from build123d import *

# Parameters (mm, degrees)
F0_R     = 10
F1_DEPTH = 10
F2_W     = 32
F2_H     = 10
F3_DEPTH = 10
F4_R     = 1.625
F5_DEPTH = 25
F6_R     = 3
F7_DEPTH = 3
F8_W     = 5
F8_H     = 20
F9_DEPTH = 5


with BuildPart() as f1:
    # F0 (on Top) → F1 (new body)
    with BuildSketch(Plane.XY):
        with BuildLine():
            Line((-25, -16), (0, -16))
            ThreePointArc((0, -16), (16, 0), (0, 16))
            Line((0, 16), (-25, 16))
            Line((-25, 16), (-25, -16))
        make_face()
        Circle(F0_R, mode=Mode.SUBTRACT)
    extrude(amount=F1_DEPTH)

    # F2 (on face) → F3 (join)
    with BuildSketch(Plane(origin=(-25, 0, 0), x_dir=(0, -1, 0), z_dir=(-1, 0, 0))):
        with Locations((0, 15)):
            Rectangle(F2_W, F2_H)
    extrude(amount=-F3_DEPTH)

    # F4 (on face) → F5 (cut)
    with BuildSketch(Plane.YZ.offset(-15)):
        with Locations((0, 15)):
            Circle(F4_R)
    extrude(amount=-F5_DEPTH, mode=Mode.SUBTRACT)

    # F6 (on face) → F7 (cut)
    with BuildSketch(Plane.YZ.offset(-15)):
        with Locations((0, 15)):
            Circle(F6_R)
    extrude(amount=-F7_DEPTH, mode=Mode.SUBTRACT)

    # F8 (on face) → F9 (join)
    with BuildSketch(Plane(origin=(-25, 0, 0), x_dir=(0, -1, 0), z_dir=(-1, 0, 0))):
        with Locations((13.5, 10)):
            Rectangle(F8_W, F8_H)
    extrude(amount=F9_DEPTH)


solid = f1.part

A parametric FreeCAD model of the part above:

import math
import FreeCAD as App
import Part
import Sketcher
Q = App.Units.Quantity

doc = App.newDocument("Part")
body = doc.addObject("PartDesign::Body", "Body")

# Sketch on XY plane
sketch1 = doc.addObject("Sketcher::SketchObject", "Sketch")
body.addObject(sketch1)
sketch1.AttachmentSupport = (doc.XY_Plane, [""])
sketch1.MapMode = "FlatFace"
sketch1.addGeometry(Part.LineSegment(App.Vector(-25, -16, 0), App.Vector(0, -16, 0)), False)
sketch1.addGeometry(Part.ArcOfCircle(Part.Circle(App.Vector(0, 0, 0), App.Vector(0, 0, 1), 16), math.radians(-90), math.radians(90)), False)
sketch1.addGeometry(Part.LineSegment(App.Vector(0, 16, 0), App.Vector(-25, 16, 0)), False)
sketch1.addGeometry(Part.LineSegment(App.Vector(-25, 16, 0), App.Vector(-25, -16, 0)), False)
sketch1.addGeometry(Part.Circle(App.Vector(0, 0, 0), App.Vector(0, 0, 1), 10), False)
sketch1.addConstraint(Sketcher.Constraint("Tangent", 0, 2, 1, 1))
sketch1.addConstraint(Sketcher.Constraint("Tangent", 1, 2, 2, 1))
sketch1.addConstraint(Sketcher.Constraint("Coincident", 2, 2, 3, 1))
sketch1.addConstraint(Sketcher.Constraint("Coincident", 3, 2, 0, 1))
sketch1.addConstraint(Sketcher.Constraint("Horizontal", 0))
sketch1.addConstraint(Sketcher.Constraint("Horizontal", 2))
sketch1.addConstraint(Sketcher.Constraint("Vertical", 3))
sketch1.addConstraint(Sketcher.Constraint("Coincident", 1, 3, -1, 1))
sketch1.addConstraint(Sketcher.Constraint("Coincident", 4, 3, -1, 1))
sketch1.addConstraint(Sketcher.Constraint("Diameter", 4, Q("20 mm")))
sketch1.addConstraint(Sketcher.Constraint("Radius", 1, Q("16 mm")))
sketch1.addConstraint(Sketcher.Constraint("DistanceX", 0, 1, 0, 2, Q("25 mm")))
pad1 = doc.addObject("PartDesign::Pad", "Pad")
body.addObject(pad1)
pad1.Profile = sketch1
pad1.Length = 10

# Sketch on YZ plane
sketch2 = doc.addObject("Sketcher::SketchObject", "Sketch001")
body.addObject(sketch2)
sketch2.AttachmentSupport = (doc.YZ_Plane, [""])
sketch2.MapMode = "FlatFace"
sketch2.AttachmentOffset = App.Placement(App.Vector(0, 0, -25), App.Rotation())
sketch2.addGeometry(Part.LineSegment(App.Vector(16, 20, 0), App.Vector(16, 10, 0)), False)
sketch2.addGeometry(Part.LineSegment(App.Vector(16, 10, 0), App.Vector(-16, 10, 0)), False)
sketch2.addGeometry(Part.LineSegment(App.Vector(-16, 10, 0), App.Vector(-16, 20, 0)), False)
sketch2.addGeometry(Part.LineSegment(App.Vector(-16, 20, 0), App.Vector(16, 20, 0)), False)
sketch2.addConstraint(Sketcher.Constraint("Coincident", 0, 2, 1, 1))
sketch2.addConstraint(Sketcher.Constraint("Coincident", 1, 2, 2, 1))
sketch2.addConstraint(Sketcher.Constraint("Coincident", 2, 2, 3, 1))
sketch2.addConstraint(Sketcher.Constraint("Coincident", 3, 2, 0, 1))
sketch2.addConstraint(Sketcher.Constraint("Vertical", 0))
sketch2.addConstraint(Sketcher.Constraint("Horizontal", 1))
sketch2.addConstraint(Sketcher.Constraint("Vertical", 2))
sketch2.addConstraint(Sketcher.Constraint("Horizontal", 3))
sketch2.addConstraint(Sketcher.Constraint("DistanceX", 1, 2, 1, 1, Q("32 mm")))
sketch2.addConstraint(Sketcher.Constraint("DistanceY", 0, 2, 0, 1, Q("10 mm")))
sketch2.addConstraint(Sketcher.Constraint("DistanceX", -1, 1, 0, 2, Q("16 mm")))
sketch2.addConstraint(Sketcher.Constraint("DistanceY", -1, 1, 0, 2, Q("10 mm")))
pad2 = doc.addObject("PartDesign::Pad", "Pad001")
body.addObject(pad2)
pad2.Profile = sketch2
pad2.Length = 10

# Sketch on YZ plane
sketch3 = doc.addObject("Sketcher::SketchObject", "Sketch002")
body.addObject(sketch3)
sketch3.AttachmentSupport = (doc.YZ_Plane, [""])
sketch3.MapMode = "FlatFace"
sketch3.AttachmentOffset = App.Placement(App.Vector(0, 0, -15), App.Rotation())
sketch3.addGeometry(Part.Circle(App.Vector(0, 15, 0), App.Vector(0, 0, 1), 1.6), False)
sketch3.addConstraint(Sketcher.Constraint("PointOnObject", 0, 3, -2))
sketch3.addConstraint(Sketcher.Constraint("Diameter", 0, Q("3.25 mm")))
sketch3.addConstraint(Sketcher.Constraint("DistanceY", -1, 1, 0, 3, Q("15 mm")))
pocket1 = doc.addObject("PartDesign::Pocket", "Pocket")
body.addObject(pocket1)
pocket1.Profile = sketch3
pocket1.Length = 25

# Sketch on YZ plane
sketch4 = doc.addObject("Sketcher::SketchObject", "Sketch003")
body.addObject(sketch4)
sketch4.AttachmentSupport = (doc.YZ_Plane, [""])
sketch4.MapMode = "FlatFace"
sketch4.AttachmentOffset = App.Placement(App.Vector(0, 0, -15), App.Rotation())
sketch4.addGeometry(Part.Circle(App.Vector(0, 15, 0), App.Vector(0, 0, 1), 3), False)
sketch4.addConstraint(Sketcher.Constraint("PointOnObject", 0, 3, -2))
sketch4.addConstraint(Sketcher.Constraint("Diameter", 0, Q("6 mm")))
sketch4.addConstraint(Sketcher.Constraint("DistanceY", -1, 1, 0, 3, Q("15 mm")))
pocket2 = doc.addObject("PartDesign::Pocket", "Pocket001")
body.addObject(pocket2)
pocket2.Profile = sketch4
pocket2.Length = 3

# Sketch on YZ plane
sketch5 = doc.addObject("Sketcher::SketchObject", "Sketch004")
body.addObject(sketch5)
sketch5.AttachmentSupport = (doc.YZ_Plane, [""])
sketch5.MapMode = "FlatFace"
sketch5.AttachmentOffset = App.Placement(App.Vector(0, 0, -25), App.Rotation())
sketch5.addGeometry(Part.LineSegment(App.Vector(-11, 20, 0), App.Vector(-11, 0, 0)), False)
sketch5.addGeometry(Part.LineSegment(App.Vector(-11, 0, 0), App.Vector(-16, 0, 0)), False)
sketch5.addGeometry(Part.LineSegment(App.Vector(-16, 0, 0), App.Vector(-16, 20, 0)), False)
sketch5.addGeometry(Part.LineSegment(App.Vector(-16, 20, 0), App.Vector(-11, 20, 0)), False)
sketch5.addConstraint(Sketcher.Constraint("Coincident", 0, 2, 1, 1))
sketch5.addConstraint(Sketcher.Constraint("Coincident", 1, 2, 2, 1))
sketch5.addConstraint(Sketcher.Constraint("Coincident", 2, 2, 3, 1))
sketch5.addConstraint(Sketcher.Constraint("Coincident", 3, 2, 0, 1))
sketch5.addConstraint(Sketcher.Constraint("Vertical", 0))
sketch5.addConstraint(Sketcher.Constraint("Horizontal", 1))
sketch5.addConstraint(Sketcher.Constraint("Vertical", 2))
sketch5.addConstraint(Sketcher.Constraint("Horizontal", 3))
sketch5.addConstraint(Sketcher.Constraint("PointOnObject", 0, 2, -1))
sketch5.addConstraint(Sketcher.Constraint("DistanceX", 1, 2, 1, 1, Q("5 mm")))
sketch5.addConstraint(Sketcher.Constraint("DistanceY", 0, 2, 0, 1, Q("20 mm")))
sketch5.addConstraint(Sketcher.Constraint("DistanceX", 0, 2, -1, 1, Q("11 mm")))
pad3 = doc.addObject("PartDesign::Pad", "Pad002")
body.addObject(pad3)
pad3.Profile = sketch5
pad3.Length = 5
pad3.Reversed = True

doc.recompute()
